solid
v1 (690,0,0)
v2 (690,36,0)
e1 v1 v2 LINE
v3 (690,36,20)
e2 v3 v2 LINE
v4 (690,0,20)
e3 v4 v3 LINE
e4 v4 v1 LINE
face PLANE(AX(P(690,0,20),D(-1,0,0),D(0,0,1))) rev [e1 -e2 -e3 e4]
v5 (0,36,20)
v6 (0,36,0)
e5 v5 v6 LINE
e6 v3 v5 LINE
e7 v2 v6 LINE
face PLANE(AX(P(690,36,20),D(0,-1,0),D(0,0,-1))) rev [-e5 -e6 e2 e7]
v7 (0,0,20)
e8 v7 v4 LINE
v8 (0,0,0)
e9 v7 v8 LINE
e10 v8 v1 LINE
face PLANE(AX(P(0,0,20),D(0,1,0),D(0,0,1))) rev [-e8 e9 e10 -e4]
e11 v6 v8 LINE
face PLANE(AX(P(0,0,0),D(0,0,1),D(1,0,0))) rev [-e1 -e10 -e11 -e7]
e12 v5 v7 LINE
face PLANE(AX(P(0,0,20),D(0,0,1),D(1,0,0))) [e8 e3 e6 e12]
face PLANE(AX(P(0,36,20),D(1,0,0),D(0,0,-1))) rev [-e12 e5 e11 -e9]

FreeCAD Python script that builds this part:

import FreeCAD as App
import Part
import Sketcher

V = App.Vector

doc = App.newDocument("Part")
body = doc.addObject("PartDesign::Body", "Body")

sketch1 = body.newObject("Sketcher::SketchObject", "Sketch")
sketch1.AttachmentSupport = (doc.getObject("XY_Plane"), [""])
sketch1.MapMode = "FlatFace"
sketch1.addGeometry(Part.LineSegment(V(0, 36, 0), V(0, 0, 0)), False)
sketch1.addGeometry(Part.LineSegment(V(0, 0, 0), V(690, 0, 0)), False)
sketch1.addGeometry(Part.LineSegment(V(690, 0, 0), V(690, 36, 0)), False)
sketch1.addGeometry(Part.LineSegment(V(690, 36, 0), V(0, 36, 0)), False)
sketch1.addConstraint(Sketcher.Constraint("Coincident", 0, 2, 1, 1))
sketch1.addConstraint(Sketcher.Constraint("Coincident", 1, 2, 2, 1))
sketch1.addConstraint(Sketcher.Constraint("Coincident", 2, 2, 3, 1))
sketch1.addConstraint(Sketcher.Constraint("Coincident", 3, 2, 0, 1))
sketch1.addConstraint(Sketcher.Constraint("Vertical", 0))
sketch1.addConstraint(Sketcher.Constraint("Horizontal", 1))
sketch1.addConstraint(Sketcher.Constraint("Vertical", 2))
sketch1.addConstraint(Sketcher.Constraint("Horizontal", 3))
sketch1.addConstraint(Sketcher.Constraint("Coincident", 0, 2, -1, 1))
sketch1.addConstraint(Sketcher.Constraint("DistanceX", 1, 1, 1, 2, 690.0))
sketch1.addConstraint(Sketcher.Constraint("DistanceY", 0, 2, 0, 1, 36.0))
pad1 = body.newObject("PartDesign::Pad", "Pad")
pad1.Profile = sketch1
pad1.Length = 20

doc.recompute()
